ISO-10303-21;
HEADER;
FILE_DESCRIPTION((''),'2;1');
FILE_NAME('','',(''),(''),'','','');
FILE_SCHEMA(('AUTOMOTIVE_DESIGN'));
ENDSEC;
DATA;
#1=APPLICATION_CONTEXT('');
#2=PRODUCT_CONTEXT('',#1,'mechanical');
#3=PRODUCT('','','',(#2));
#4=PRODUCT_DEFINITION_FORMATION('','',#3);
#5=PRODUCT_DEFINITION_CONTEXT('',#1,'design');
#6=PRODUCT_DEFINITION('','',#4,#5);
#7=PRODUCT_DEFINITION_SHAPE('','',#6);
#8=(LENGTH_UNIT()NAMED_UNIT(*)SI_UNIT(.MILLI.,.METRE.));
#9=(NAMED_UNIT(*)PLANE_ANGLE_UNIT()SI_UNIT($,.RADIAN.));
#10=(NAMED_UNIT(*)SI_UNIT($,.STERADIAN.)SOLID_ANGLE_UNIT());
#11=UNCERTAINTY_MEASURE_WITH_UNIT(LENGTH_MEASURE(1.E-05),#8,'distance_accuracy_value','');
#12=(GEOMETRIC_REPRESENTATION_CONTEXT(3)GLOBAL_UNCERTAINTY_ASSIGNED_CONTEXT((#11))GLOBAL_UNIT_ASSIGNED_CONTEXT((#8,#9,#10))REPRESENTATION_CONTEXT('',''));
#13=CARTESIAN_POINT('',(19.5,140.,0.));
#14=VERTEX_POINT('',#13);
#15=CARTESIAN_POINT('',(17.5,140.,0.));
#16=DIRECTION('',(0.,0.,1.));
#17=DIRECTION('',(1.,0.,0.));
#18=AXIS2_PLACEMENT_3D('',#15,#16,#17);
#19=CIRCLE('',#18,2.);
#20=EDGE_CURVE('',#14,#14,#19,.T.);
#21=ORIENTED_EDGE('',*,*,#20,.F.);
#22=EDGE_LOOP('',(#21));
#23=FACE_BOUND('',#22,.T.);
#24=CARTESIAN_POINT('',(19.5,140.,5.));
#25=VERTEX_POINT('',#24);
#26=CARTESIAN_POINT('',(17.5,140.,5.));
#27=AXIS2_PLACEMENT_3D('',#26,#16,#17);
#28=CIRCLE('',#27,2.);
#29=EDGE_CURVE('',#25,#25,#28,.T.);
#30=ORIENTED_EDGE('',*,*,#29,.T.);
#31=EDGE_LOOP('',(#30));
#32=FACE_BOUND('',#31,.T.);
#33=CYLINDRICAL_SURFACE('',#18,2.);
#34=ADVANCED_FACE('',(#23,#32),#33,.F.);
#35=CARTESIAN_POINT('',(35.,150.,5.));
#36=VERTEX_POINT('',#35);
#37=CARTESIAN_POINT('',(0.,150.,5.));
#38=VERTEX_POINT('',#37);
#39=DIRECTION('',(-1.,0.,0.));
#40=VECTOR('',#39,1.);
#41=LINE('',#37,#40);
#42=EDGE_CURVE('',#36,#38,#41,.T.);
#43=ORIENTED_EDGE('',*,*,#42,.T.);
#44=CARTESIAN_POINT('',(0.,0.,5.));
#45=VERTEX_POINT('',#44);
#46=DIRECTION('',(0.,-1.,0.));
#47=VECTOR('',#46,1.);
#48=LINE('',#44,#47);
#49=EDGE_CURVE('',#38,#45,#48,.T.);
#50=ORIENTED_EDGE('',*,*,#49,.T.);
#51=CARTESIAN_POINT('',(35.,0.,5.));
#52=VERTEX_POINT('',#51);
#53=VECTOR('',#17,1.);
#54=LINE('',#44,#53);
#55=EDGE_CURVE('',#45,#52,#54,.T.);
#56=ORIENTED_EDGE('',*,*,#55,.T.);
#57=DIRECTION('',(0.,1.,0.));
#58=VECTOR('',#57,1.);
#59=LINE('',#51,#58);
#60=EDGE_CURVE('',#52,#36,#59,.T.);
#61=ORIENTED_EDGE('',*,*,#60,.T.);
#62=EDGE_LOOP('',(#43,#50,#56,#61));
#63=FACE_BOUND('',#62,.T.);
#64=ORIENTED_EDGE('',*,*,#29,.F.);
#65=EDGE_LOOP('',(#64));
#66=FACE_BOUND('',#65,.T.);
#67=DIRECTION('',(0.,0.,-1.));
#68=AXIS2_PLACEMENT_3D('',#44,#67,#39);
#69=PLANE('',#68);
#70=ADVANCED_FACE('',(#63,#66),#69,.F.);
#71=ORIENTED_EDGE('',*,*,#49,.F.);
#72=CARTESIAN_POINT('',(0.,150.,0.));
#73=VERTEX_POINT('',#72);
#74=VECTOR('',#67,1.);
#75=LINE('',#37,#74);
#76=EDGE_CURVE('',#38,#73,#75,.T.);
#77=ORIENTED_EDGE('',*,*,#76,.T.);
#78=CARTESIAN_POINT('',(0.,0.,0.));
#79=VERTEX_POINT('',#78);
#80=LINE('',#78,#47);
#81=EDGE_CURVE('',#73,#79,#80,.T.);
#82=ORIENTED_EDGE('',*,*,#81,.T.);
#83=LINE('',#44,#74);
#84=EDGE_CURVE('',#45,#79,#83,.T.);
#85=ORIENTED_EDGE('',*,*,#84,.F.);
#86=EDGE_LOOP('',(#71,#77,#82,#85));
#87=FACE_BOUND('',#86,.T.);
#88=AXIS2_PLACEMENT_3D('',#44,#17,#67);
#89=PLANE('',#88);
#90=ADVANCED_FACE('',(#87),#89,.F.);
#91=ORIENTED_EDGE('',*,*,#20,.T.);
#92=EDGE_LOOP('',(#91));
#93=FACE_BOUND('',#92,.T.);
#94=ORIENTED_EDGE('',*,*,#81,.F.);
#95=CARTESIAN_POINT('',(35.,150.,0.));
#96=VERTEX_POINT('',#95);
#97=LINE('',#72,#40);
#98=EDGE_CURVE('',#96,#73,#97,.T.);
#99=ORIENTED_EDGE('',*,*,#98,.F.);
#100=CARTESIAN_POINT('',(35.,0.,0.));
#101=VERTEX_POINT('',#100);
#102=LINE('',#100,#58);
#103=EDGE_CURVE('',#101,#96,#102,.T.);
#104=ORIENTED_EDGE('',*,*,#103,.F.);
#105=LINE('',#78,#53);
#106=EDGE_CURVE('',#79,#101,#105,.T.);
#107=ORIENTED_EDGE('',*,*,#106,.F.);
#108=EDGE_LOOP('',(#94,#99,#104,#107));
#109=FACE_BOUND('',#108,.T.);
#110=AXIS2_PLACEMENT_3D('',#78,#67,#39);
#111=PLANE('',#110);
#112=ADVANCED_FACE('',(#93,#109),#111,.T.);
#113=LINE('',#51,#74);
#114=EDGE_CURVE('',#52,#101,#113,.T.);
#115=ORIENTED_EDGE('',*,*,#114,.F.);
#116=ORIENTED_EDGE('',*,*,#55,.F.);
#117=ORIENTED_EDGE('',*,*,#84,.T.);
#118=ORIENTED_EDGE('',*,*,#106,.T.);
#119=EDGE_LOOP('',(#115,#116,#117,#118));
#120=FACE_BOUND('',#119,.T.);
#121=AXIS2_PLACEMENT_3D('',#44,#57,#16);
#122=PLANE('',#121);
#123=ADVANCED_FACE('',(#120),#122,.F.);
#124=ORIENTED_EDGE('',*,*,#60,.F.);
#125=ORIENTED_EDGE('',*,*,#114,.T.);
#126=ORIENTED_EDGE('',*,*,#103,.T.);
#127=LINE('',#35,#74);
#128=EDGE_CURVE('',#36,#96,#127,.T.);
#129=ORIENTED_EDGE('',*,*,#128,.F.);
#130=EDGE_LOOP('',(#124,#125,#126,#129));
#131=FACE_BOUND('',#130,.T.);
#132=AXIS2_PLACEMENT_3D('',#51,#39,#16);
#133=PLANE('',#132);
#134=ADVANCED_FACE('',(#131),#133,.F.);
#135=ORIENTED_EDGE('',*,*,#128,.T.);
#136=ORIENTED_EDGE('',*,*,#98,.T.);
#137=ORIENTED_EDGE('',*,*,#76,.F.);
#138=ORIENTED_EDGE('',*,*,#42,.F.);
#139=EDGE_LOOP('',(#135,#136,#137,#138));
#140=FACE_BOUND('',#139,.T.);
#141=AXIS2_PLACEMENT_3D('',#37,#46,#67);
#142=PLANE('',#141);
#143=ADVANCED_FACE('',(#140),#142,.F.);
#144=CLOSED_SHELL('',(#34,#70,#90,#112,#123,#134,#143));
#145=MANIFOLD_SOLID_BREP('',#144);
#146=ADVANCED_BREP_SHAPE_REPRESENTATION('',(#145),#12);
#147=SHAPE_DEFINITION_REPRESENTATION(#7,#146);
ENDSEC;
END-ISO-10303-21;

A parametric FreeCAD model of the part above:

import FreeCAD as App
import Part
import Sketcher
from FreeCAD import Vector


def add_polygon(sketch, points):
    """Adds a closed chain of lines whose ends are joined by coincident constraints."""
    first, n = sketch.GeometryCount, len(points)
    for a, b in zip(points, points[1:] + points[:1]):
        sketch.addGeometry(Part.LineSegment(App.Vector(*a, 0), App.Vector(*b, 0)), False)
    for i in range(n):
        sketch.addConstraint(Sketcher.Constraint("Coincident", first + i, 2, first + (i + 1) % n, 1))

doc = App.newDocument("Part")
body = doc.addObject("PartDesign::Body", "Body")

# Sketch on XY plane
sketch1 = body.newObject("Sketcher::SketchObject", "Sketch")
sketch1.AttachmentSupport = (doc.getObject("XY_Plane"), [""])
sketch1.MapMode = "FlatFace"
add_polygon(sketch1, [(0, 150), (0, 0), (35, 0), (35, 150)])  # lines 0-3
sketch1.addConstraint(Sketcher.Constraint("Vertical", 0))
sketch1.addConstraint(Sketcher.Constraint("Horizontal", 1))
sketch1.addConstraint(Sketcher.Constraint("Vertical", 2))
sketch1.addConstraint(Sketcher.Constraint("Horizontal", 3))
sketch1.addConstraint(Sketcher.Constraint("Coincident", 0, 2, -1, 1))
sketch1.addConstraint(Sketcher.Constraint("DistanceX", 1, 1, 1, 2, 35.0))
sketch1.addConstraint(Sketcher.Constraint("DistanceY", 0, 2, 0, 1, 150.0))
pad1 = body.newObject("PartDesign::Pad", "Pad")
pad1.Profile = sketch1
pad1.Length = 5

# Sketch on XY plane
sketch2 = body.newObject("Sketcher::SketchObject", "Sketch001")
sketch2.AttachmentSupport = (doc.getObject("XY_Plane"), [""])
sketch2.MapMode = "FlatFace"
sketch2.AttachmentOffset = App.Placement(Vector(0, 0, 5), App.Rotation())
sketch2.addGeometry(Part.Circle(Vector(17.5, 140, 0), Vector(0, 0, 1), 2), False)
sketch2.addConstraint(Sketcher.Constraint("Diameter", 0, 4.0))
sketch2.addConstraint(Sketcher.Constraint("DistanceY", -1, 1, 0, 3, 140.0))
sketch2.addConstraint(Sketcher.Constraint("DistanceX", -1, 1, 0, 3, 17.5))
pocket1 = body.newObject("PartDesign::Pocket", "Pocket")
pocket1.Profile = sketch2
pocket1.Type = "ThroughAll"

doc.recompute()
